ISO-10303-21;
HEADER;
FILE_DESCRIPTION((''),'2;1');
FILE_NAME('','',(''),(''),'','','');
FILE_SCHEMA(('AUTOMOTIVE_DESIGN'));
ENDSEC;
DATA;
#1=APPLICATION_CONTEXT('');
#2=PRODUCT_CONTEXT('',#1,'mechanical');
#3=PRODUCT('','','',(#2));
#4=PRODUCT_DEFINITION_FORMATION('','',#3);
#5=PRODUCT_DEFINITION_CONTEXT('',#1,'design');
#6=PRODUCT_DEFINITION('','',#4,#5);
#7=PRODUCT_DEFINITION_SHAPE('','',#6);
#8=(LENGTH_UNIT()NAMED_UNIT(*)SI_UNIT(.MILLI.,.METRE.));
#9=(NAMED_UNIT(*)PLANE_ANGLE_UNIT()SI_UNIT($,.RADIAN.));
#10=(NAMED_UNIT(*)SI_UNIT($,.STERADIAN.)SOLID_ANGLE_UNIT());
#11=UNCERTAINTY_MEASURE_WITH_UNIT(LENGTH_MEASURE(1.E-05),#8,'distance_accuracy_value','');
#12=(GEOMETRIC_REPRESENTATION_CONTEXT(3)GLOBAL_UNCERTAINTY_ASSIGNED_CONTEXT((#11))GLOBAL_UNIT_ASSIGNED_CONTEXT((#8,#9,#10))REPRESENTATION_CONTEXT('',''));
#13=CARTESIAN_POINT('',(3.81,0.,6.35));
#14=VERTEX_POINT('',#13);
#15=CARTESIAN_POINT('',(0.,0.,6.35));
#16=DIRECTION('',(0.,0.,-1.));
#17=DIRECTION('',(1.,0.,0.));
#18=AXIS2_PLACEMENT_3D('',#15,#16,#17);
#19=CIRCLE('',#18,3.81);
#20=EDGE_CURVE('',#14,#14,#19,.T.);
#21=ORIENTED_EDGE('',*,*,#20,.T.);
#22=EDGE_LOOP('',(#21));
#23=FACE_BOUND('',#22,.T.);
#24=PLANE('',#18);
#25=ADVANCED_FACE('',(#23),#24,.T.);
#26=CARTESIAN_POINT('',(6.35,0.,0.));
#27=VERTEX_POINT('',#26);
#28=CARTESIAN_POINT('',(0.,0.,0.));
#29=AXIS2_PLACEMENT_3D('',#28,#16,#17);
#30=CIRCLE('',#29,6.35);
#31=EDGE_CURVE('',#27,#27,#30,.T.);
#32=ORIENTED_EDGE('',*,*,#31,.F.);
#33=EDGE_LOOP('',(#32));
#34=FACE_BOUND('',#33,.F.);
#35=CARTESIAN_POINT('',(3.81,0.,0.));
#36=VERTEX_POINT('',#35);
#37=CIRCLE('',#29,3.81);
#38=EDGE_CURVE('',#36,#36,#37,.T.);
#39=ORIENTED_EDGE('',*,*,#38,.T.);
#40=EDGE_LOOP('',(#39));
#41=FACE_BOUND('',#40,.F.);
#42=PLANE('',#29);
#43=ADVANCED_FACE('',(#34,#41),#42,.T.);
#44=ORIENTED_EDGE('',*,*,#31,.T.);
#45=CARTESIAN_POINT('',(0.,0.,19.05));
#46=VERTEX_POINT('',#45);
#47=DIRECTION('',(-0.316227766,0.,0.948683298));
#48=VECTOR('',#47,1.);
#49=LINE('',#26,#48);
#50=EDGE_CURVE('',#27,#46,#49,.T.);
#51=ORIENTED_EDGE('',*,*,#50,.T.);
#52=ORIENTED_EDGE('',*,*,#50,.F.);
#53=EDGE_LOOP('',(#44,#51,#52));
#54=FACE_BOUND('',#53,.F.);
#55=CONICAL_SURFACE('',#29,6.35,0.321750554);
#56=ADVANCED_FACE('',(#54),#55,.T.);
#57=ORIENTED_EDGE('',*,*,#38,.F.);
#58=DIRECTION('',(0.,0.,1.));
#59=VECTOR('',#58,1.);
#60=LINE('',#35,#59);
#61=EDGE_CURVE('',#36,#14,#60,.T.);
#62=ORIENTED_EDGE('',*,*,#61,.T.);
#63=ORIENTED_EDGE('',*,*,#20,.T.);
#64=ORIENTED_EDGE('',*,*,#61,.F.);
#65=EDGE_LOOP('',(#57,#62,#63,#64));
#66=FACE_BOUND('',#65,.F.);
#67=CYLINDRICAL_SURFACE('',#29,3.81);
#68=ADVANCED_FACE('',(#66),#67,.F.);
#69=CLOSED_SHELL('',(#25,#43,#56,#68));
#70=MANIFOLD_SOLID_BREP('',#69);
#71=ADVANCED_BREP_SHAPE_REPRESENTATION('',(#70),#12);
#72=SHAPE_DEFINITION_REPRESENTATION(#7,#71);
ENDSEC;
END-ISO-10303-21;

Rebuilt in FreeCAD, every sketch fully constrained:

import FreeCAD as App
import Part
import Sketcher

V = App.Vector
Q = App.Units.Quantity

doc = App.newDocument("Part")
body = doc.addObject("PartDesign::Body", "Body")

sketch1 = doc.addObject("Sketcher::SketchObject", "Sketch")
body.addObject(sketch1)
sketch1.AttachmentSupport = (doc.XZ_Plane, [""])
sketch1.MapMode = "FlatFace"
sketch1.addGeometry(Part.LineSegment(V(0, 19, 0), V(0, 0, 0)), False)
sketch1.addGeometry(Part.LineSegment(V(0, 0, 0), V(6, 0, 0)), False)
sketch1.addGeometry(Part.LineSegment(V(6, 0, 0), V(0, 19, 0)), False)
sketch1.addConstraint(Sketcher.Constraint("Coincident", 0, 2, 1, 1))
sketch1.addConstraint(Sketcher.Constraint("Coincident", 1, 2, 2, 1))
sketch1.addConstraint(Sketcher.Constraint("Coincident", 2, 2, 0, 1))
sketch1.addConstraint(Sketcher.Constraint("Vertical", 0))
sketch1.addConstraint(Sketcher.Constraint("Horizontal", 1))
sketch1.addConstraint(Sketcher.Constraint("Coincident", 0, 2, -1, 1))
sketch1.addConstraint(Sketcher.Constraint("DistanceX", 1, 1, 1, 2, Q("0.25 in")))
sketch1.addConstraint(Sketcher.Constraint("DistanceY", 0, 2, 0, 1, Q("0.75 in")))
revolution = doc.addObject("PartDesign::Revolution", "Revolution")
body.addObject(revolution)
revolution.Profile = sketch1
revolution.ReferenceAxis = (sketch1, ["V_Axis"])
revolution.Angle = 360

sketch2 = doc.addObject("Sketcher::SketchObject", "Sketch001")
body.addObject(sketch2)
sketch2.AttachmentSupport = (doc.XY_Plane, [""])
sketch2.MapMode = "FlatFace"
sketch2.addGeometry(Part.Circle(V(0, 0, 0), V(0, 0, 1), 3.8), False)
sketch2.addConstraint(Sketcher.Constraint("Coincident", 0, 3, -1, 1))
sketch2.addConstraint(Sketcher.Constraint("Diameter", 0, Q("0.3 in")))
pocket1 = doc.addObject("PartDesign::Pocket", "Pocket")
body.addObject(pocket1)
pocket1.Profile = sketch2
pocket1.Length = Q("0.25 in")
pocket1.Reversed = True

doc.recompute()
